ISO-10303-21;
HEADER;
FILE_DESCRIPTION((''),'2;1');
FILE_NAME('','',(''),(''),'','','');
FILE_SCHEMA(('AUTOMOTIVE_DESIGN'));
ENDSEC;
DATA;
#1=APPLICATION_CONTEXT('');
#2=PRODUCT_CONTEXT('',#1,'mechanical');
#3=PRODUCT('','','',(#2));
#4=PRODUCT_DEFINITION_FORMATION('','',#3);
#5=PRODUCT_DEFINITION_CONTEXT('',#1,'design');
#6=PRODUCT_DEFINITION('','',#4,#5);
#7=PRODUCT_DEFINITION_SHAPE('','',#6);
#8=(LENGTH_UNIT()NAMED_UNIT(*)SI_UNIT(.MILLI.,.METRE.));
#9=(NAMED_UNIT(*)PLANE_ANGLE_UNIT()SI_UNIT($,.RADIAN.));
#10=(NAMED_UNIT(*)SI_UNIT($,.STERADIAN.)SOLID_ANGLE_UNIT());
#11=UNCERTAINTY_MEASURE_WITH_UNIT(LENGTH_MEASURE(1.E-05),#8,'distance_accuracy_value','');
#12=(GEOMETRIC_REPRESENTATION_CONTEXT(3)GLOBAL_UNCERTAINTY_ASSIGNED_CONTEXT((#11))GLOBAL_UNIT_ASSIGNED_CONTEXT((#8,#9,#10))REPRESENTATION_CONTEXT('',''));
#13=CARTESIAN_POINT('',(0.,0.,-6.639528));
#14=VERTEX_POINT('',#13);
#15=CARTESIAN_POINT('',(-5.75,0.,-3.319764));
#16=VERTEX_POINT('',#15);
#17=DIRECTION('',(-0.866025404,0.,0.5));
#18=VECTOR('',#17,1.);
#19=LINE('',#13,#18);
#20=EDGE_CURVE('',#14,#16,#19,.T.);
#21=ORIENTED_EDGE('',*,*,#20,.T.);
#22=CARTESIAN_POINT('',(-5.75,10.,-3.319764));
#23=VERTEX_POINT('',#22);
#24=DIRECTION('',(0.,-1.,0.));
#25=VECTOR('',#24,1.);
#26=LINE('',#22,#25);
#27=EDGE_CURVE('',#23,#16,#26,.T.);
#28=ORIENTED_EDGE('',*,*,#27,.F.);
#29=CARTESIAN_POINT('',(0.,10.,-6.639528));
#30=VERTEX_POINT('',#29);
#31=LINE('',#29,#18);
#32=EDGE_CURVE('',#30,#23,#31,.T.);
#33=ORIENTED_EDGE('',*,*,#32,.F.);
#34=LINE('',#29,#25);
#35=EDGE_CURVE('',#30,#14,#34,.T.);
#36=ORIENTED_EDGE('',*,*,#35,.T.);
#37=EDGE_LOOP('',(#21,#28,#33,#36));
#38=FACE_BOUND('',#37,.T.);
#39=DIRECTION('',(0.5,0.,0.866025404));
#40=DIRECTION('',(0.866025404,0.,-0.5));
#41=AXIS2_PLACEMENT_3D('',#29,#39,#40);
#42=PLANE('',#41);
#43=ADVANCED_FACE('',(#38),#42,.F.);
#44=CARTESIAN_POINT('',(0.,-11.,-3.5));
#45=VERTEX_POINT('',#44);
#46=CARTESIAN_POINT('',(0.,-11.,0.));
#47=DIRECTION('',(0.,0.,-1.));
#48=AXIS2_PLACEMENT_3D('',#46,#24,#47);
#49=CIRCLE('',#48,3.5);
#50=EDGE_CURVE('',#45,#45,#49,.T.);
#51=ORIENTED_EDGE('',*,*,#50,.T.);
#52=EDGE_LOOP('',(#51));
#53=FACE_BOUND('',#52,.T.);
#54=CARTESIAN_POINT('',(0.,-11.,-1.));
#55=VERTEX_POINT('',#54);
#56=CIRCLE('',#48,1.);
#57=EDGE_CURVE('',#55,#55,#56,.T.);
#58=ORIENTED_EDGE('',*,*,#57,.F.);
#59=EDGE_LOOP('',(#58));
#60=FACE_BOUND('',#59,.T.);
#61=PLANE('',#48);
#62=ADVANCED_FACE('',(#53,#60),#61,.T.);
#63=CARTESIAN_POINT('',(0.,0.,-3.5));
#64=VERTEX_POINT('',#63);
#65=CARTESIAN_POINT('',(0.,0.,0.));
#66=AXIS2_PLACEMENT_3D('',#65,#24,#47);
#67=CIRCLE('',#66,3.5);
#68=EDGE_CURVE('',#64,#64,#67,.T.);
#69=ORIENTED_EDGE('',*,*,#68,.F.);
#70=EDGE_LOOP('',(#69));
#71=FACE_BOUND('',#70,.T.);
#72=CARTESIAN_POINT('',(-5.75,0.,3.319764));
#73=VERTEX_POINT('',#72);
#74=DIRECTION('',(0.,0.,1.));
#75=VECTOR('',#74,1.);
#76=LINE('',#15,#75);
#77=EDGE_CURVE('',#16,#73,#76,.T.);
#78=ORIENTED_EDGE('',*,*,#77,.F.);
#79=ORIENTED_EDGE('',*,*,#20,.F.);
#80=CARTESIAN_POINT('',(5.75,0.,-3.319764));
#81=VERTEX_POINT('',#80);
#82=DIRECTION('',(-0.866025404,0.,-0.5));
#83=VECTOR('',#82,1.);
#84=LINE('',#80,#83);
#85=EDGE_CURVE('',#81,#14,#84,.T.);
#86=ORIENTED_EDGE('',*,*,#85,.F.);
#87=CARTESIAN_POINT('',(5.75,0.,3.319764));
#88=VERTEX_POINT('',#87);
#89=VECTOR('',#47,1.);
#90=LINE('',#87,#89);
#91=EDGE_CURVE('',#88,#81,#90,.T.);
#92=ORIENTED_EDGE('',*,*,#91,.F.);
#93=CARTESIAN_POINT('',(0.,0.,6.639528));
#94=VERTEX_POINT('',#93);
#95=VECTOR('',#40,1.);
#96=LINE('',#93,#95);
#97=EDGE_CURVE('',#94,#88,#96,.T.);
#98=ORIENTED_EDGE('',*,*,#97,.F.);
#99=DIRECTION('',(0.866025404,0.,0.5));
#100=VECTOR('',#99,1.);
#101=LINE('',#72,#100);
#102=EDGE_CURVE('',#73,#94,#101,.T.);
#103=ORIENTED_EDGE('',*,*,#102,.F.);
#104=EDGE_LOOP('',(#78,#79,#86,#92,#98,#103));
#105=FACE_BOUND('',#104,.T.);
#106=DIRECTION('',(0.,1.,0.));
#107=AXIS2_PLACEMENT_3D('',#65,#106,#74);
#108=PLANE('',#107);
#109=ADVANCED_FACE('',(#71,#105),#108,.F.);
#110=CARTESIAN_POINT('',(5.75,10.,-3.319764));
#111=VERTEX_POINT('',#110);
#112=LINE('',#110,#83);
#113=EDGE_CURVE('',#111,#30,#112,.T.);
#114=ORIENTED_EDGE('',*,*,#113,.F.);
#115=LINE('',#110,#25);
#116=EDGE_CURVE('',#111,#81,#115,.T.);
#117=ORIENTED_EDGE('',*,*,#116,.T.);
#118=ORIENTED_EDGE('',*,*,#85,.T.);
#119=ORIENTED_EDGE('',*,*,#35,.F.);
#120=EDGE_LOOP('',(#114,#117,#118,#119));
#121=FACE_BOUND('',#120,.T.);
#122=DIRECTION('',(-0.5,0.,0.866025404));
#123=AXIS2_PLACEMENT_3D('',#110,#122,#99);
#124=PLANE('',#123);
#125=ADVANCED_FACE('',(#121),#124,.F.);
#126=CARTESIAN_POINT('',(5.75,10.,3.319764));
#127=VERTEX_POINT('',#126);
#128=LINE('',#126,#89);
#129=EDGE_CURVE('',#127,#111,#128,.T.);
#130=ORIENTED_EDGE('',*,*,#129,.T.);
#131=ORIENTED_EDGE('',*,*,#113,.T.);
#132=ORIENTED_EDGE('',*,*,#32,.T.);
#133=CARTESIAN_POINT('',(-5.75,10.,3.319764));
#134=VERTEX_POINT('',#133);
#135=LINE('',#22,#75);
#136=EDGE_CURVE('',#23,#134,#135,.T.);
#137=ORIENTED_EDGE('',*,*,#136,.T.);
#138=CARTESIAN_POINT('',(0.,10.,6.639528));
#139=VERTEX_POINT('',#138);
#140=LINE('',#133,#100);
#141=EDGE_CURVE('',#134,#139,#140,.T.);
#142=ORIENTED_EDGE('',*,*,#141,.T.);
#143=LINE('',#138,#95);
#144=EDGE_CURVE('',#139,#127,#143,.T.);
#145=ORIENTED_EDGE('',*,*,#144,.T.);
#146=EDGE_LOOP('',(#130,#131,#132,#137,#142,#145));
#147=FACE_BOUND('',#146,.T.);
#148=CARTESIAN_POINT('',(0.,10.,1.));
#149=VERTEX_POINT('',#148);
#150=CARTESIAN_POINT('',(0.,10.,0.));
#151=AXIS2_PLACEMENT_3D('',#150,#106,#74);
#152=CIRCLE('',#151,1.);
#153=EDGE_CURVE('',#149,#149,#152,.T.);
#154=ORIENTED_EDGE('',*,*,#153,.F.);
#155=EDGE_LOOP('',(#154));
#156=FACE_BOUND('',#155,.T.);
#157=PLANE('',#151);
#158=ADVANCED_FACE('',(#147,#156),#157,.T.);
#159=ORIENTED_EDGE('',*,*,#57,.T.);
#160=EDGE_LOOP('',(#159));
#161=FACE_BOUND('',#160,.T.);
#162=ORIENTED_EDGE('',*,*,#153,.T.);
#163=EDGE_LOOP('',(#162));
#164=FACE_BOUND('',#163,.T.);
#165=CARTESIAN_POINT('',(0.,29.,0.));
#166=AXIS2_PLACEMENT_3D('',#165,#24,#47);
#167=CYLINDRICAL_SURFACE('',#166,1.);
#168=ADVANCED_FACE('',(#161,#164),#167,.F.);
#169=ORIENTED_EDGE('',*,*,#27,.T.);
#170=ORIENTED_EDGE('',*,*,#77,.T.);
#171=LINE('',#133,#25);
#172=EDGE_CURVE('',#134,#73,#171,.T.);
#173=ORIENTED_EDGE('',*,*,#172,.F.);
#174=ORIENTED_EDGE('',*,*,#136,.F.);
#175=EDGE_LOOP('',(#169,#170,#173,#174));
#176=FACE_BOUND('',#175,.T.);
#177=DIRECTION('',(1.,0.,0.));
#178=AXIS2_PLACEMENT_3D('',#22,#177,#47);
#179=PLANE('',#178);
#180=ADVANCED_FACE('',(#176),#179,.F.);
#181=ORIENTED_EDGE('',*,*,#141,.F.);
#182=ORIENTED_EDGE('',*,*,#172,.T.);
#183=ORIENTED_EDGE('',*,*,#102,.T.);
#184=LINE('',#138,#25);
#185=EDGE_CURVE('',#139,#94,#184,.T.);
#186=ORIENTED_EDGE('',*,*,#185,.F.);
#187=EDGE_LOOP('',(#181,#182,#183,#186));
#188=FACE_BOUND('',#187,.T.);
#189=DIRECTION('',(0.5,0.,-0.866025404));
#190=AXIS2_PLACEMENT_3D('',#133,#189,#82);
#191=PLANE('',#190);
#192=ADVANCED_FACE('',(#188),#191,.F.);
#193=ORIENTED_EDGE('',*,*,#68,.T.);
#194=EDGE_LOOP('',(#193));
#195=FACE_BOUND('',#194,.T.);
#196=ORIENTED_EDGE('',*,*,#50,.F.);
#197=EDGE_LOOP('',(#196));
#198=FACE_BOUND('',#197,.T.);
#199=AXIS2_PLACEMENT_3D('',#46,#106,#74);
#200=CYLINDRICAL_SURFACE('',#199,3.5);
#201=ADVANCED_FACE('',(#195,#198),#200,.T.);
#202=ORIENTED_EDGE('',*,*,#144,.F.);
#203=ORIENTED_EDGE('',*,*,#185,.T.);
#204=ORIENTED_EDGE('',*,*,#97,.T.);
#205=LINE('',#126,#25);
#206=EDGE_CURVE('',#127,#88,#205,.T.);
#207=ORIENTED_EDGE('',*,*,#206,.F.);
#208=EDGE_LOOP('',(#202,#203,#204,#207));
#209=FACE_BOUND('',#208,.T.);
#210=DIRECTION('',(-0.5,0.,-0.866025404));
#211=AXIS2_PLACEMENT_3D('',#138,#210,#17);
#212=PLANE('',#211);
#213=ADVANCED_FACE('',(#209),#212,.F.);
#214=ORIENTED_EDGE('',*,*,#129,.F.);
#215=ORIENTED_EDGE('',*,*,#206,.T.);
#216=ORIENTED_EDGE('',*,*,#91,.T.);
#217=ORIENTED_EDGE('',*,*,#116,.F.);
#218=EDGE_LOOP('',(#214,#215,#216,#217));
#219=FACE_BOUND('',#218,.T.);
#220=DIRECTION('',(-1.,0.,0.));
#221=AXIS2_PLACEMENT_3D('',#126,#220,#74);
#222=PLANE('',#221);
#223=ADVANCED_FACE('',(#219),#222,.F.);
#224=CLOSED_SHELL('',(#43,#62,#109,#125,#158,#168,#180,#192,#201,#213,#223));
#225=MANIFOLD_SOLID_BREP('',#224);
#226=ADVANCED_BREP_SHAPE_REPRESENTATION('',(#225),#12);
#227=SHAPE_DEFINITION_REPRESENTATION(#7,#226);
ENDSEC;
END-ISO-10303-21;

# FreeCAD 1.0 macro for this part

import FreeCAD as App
import Part
import Sketcher
Q = App.Units.Quantity


def add_polygon(sketch, points):
    """Adds a closed chain of lines whose ends are joined by coincident constraints."""
    first, n = sketch.GeometryCount, len(points)
    for a, b in zip(points, points[1:] + points[:1]):
        sketch.addGeometry(Part.LineSegment(App.Vector(*a, 0), App.Vector(*b, 0)), False)
    for i in range(n):
        sketch.addConstraint(Sketcher.Constraint("Coincident", first + i, 2, first + (i + 1) % n, 1))

doc = App.newDocument("Part")
body = doc.addObject("PartDesign::Body", "Body")

# Sketch on XZ plane
sketch1 = body.newObject("Sketcher::SketchObject", "Sketch")
sketch1.AttachmentSupport = (doc.getObject("XZ_Plane"), [""])
sketch1.MapMode = "FlatFace"
add_polygon(sketch1, [(0, -7), (-6, -3), (-6, 3), (0, 7), (6, 3), (6, -3)])  # lines 0-5
sketch1.addConstraint([
    Sketcher.Constraint("Vertical", 1),
    Sketcher.Constraint("Vertical", 4),
    Sketcher.Constraint("Symmetric", 0, 2, 3, 2, -1, 1),
    Sketcher.Constraint("Symmetric", 2, 2, 5, 2, -1, 1),
    Sketcher.Constraint("PointOnObject", 2, 2, -2),
    Sketcher.Constraint("Parallel", 2, 5),
    Sketcher.Constraint("Horizontal", 1, 2, 3, 2),
    Sketcher.Constraint("Angle", 0, Q("150 deg")),
    Sketcher.Constraint("DistanceX", 1, 2, 3, 2, 11.5),
    Sketcher.Constraint("DistanceY", 1, 1, 1, 2, 6.639528),
])
pad1 = body.newObject("PartDesign::Pad", "Pad")
pad1.Profile = sketch1
pad1.Length = 10
pad1.Reversed = True

# Sketch on XZ plane
sketch2 = body.newObject("Sketcher::SketchObject", "Sketch001")
sketch2.AttachmentSupport = (doc.getObject("XZ_Plane"), [""])
sketch2.MapMode = "FlatFace"
sketch2.addGeometry(Part.Circle(App.Vector(0, 0, 0), App.Vector(0, 0, 1), 3.5), False)
sketch2.addConstraint([
    Sketcher.Constraint("Coincident", 0, 3, -1, 1),
    Sketcher.Constraint("Diameter", 0, 7.0),
])
pad2 = body.newObject("PartDesign::Pad", "Pad001")
pad2.Profile = sketch2
pad2.Length = 11

# Sketch on XZ plane
sketch3 = body.newObject("Sketcher::SketchObject", "Sketch002")
sketch3.AttachmentSupport = (doc.getObject("XZ_Plane"), [""])
sketch3.MapMode = "FlatFace"
sketch3.AttachmentOffset = App.Placement(App.Vector(0, 0, 11), App.Rotation())
sketch3.addGeometry(Part.Circle(App.Vector(0, 0, 0), App.Vector(0, 0, 1), 1), False)
sketch3.addConstraint([
    Sketcher.Constraint("Coincident", 0, 3, -1, 1),
    Sketcher.Constraint("Diameter", 0, 2.0),
])
pocket1 = body.newObject("PartDesign::Pocket", "Pocket")
pocket1.Profile = sketch3
pocket1.Length = 40

doc.recompute()
